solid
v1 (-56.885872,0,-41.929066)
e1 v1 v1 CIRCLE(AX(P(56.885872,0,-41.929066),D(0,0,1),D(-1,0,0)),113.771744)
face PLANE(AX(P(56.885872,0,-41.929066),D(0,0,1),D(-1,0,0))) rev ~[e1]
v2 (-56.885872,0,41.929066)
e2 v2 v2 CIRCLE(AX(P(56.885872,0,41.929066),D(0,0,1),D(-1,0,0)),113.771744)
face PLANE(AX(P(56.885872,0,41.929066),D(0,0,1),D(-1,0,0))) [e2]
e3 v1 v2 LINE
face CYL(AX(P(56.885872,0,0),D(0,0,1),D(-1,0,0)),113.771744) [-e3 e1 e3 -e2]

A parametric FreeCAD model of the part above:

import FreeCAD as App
import Part
import Sketcher

V = App.Vector

doc = App.newDocument("Part")
body = doc.addObject("PartDesign::Body", "Body")

sketch1 = doc.addObject("Sketcher::SketchObject", "Sketch")
body.addObject(sketch1)
sketch1.AttachmentSupport = (doc.XZ_Plane, [""])
sketch1.MapMode = "FlatFace"
sketch1.addGeometry([
    Part.LineSegment(V(-57, 42, 0), V(-57, -42, 0)),
    Part.LineSegment(V(-57, -42, 0), V(57, -42, 0)),
    Part.LineSegment(V(57, -42, 0), V(57, 42, 0)),
    Part.LineSegment(V(57, 42, 0), V(-57, 42, 0)),
], False)
sketch1.addGeometry(Part.LineSegment(V(57, -42, 0), V(57, 42, 0)), True)
sketch1.addConstraint([
    Sketcher.Constraint("Coincident", 0, 2, 1, 1),
    Sketcher.Constraint("Coincident", 1, 2, 2, 1),
    Sketcher.Constraint("Coincident", 2, 2, 3, 1),
    Sketcher.Constraint("Coincident", 3, 2, 0, 1),
    Sketcher.Constraint("Vertical", 0),
    Sketcher.Constraint("Horizontal", 1),
    Sketcher.Constraint("Vertical", 2),
    Sketcher.Constraint("Horizontal", 3),
    Sketcher.Constraint("Vertical", 4),
    Sketcher.Constraint("Coincident", 4, 1, 1, 2),
    Sketcher.Constraint("Symmetric", 0, 2, 2, 2, -1, 1),
    Sketcher.Constraint("Horizontal", 3, 2, 4, 2),
    Sketcher.Constraint("DistanceY", 0, 2, 0, 1, 83.858132),
    Sketcher.Constraint("DistanceX", 1, 1, 1, 2, 113.771744),
])
revolution = doc.addObject("PartDesign::Revolution", "Revolution")
body.addObject(revolution)
revolution.Profile = sketch1
revolution.ReferenceAxis = (sketch1, ["Axis0"])
revolution.Angle = 360

doc.recompute()
